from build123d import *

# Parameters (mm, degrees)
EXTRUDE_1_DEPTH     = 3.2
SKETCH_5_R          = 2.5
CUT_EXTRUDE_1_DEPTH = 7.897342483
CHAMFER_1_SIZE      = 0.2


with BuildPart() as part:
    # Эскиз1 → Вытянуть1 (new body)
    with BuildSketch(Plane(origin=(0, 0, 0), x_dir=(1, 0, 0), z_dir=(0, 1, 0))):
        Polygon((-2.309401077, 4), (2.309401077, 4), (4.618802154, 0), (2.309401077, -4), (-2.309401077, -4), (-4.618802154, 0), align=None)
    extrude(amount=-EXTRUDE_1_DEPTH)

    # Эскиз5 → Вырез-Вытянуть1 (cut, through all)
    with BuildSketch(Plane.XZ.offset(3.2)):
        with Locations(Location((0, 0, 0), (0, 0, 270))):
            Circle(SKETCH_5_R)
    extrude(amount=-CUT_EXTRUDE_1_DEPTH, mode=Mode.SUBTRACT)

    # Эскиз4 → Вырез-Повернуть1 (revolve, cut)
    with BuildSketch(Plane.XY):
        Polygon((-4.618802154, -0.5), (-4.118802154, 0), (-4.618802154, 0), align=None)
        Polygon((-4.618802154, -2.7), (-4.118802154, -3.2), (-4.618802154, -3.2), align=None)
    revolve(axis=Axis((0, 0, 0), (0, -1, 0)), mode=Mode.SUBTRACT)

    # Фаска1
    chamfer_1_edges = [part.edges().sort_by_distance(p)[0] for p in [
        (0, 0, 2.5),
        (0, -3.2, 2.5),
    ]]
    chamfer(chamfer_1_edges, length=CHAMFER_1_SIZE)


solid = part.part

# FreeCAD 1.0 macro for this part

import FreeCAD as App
import Part
import Sketcher
from FreeCAD import Vector
Q = App.Units.Quantity


def edges_at(feature, points):
    """Names of the edges that pass closest to the given points."""
    edges = feature.Shape.Edges
    near = lambda p: min(range(len(edges)), key=lambda i: edges[i].distToShape(Part.Vertex(*p))[0])
    return sorted({f"Edge{near(p) + 1}" for p in points})

doc = App.newDocument("Part")
params = doc.addObject("Spreadsheet::Sheet", "Params")
for row, (alias, value) in enumerate([
    ("pad1_length", "3.2 mm"),
    ("sketch2_diameter", "5 mm"),
    ("sketch3_width", "0.5 mm"),
    ("groove_angle", "360 deg"),
    ("chamfer_size", "0.2 mm"),
], start=1):
    params.set(f"A{row}", alias)
    params.set(f"B{row}", "=" + value)
    params.setAlias(f"B{row}", alias)

body = doc.addObject("PartDesign::Body", "Body")

# Sketch on XZ plane
sketch1 = doc.addObject("Sketcher::SketchObject", "Sketch")
body.addObject(sketch1)
sketch1.AttachmentSupport = (doc.XZ_Plane, [""])
sketch1.MapMode = "FlatFace"
sketch1.addGeometry([
    Part.LineSegment(Vector(2.3, -4, 0), Vector(-2.3, -4, 0)),  # 0
    Part.LineSegment(Vector(-2.3, -4, 0), Vector(-4.6, 0, 0)),  # 1
    Part.LineSegment(Vector(-4.6, 0, 0), Vector(-2.3, 4, 0)),  # 2
    Part.LineSegment(Vector(-2.3, 4, 0), Vector(2.3, 4, 0)),  # 3
    Part.LineSegment(Vector(2.3, 4, 0), Vector(4.6, 0, 0)),  # 4
    Part.LineSegment(Vector(4.6, 0, 0), Vector(2.3, -4, 0)),  # 5
], False)
sketch1.addConstraint([
    Sketcher.Constraint("Coincident", 0, 2, 1, 1),
    Sketcher.Constraint("Coincident", 1, 2, 2, 1),
    Sketcher.Constraint("Coincident", 2, 2, 3, 1),
    Sketcher.Constraint("Coincident", 3, 2, 4, 1),
    Sketcher.Constraint("Coincident", 4, 2, 5, 1),
    Sketcher.Constraint("Coincident", 5, 2, 0, 1),
    Sketcher.Constraint("Horizontal", 0),
    Sketcher.Constraint("Horizontal", 3),
    Sketcher.Constraint("Symmetric", 0, 2, 3, 2, -1, 1),
    Sketcher.Constraint("Symmetric", 1, 2, 4, 2, -1, 1),
    Sketcher.Constraint("PointOnObject", 1, 2, -1),
    Sketcher.Constraint("Parallel", 2, 5),
    Sketcher.Constraint("Vertical", 0, 2, 2, 2),
    Sketcher.Constraint("Angle", 1, Q("120 deg")),
    Sketcher.Constraint("DistanceY", 0, 2, -1, 1, 4.0),
    Sketcher.Constraint("DistanceX", 0, 2, -1, 1, 2.309401),
])
pad1 = doc.addObject("PartDesign::Pad", "Pad")
body.addObject(pad1)
pad1.Profile = sketch1
pad1.setExpression("Length", "Params.pad1_length")

# Sketch on XZ plane
sketch2 = doc.addObject("Sketcher::SketchObject", "Sketch001")
body.addObject(sketch2)
sketch2.AttachmentSupport = (doc.XZ_Plane, [""])
sketch2.MapMode = "FlatFace"
sketch2.AttachmentOffset = App.Placement(Vector(0, 0, 3.2), App.Rotation())
sketch2.addGeometry(Part.Circle(Vector(0, 0, 0), Vector(0, 0, 1), 2.5), False)
sketch2.addConstraint([
    Sketcher.Constraint("Coincident", 0, 3, -1, 1),
    Sketcher.Constraint("Diameter", 0, 5.0),
])
sketch2.setExpression("Constraints[1]", "Params.sketch2_diameter")
pocket1 = doc.addObject("PartDesign::Pocket", "Pocket")
body.addObject(pocket1)
pocket1.Profile = sketch2
pocket1.Type = "ThroughAll"

# Sketch on XY plane
sketch3 = doc.addObject("Sketcher::SketchObject", "Sketch002")
body.addObject(sketch3)
sketch3.AttachmentSupport = (doc.XY_Plane, [""])
sketch3.MapMode = "FlatFace"
sketch3.addGeometry([
    Part.LineSegment(Vector(-4.6, -0.5, 0), Vector(-4.1, 0, 0)),  # 0
    Part.LineSegment(Vector(-4.1, 0, 0), Vector(-4.6, 0, 0)),  # 1
    Part.LineSegment(Vector(-4.6, 0, 0), Vector(-4.6, -0.5, 0)),  # 2
    Part.LineSegment(Vector(-4.1, -3.2, 0), Vector(-4.6, -2.7, 0)),  # 3
    Part.LineSegment(Vector(-4.6, -2.7, 0), Vector(-4.6, -3.2, 0)),  # 4
    Part.LineSegment(Vector(-4.6, -3.2, 0), Vector(-4.1, -3.2, 0)),  # 5
], False)
sketch3.addConstraint([
    Sketcher.Constraint("Coincident", 0, 2, 1, 1),
    Sketcher.Constraint("Coincident", 1, 2, 2, 1),
    Sketcher.Constraint("Coincident", 2, 2, 0, 1),
    Sketcher.Constraint("Coincident", 3, 2, 4, 1),
    Sketcher.Constraint("Coincident", 4, 2, 5, 1),
    Sketcher.Constraint("Coincident", 5, 2, 3, 1),
    Sketcher.Constraint("Horizontal", 1),
    Sketcher.Constraint("Vertical", 2),
    Sketcher.Constraint("Vertical", 4),
    Sketcher.Constraint("Horizontal", 5),
    Sketcher.Constraint("PointOnObject", 0, 2, -1),
    Sketcher.Constraint("Perpendicular", 0, 3),
    Sketcher.Constraint("Vertical", 2, 2, 3, 2),
    Sketcher.Constraint("Vertical", 0, 2, 5, 2),
    Sketcher.Constraint("Equal", 5, 2),
    Sketcher.Constraint("DistanceX", 1, 2, 1, 1, 0.5),
    Sketcher.Constraint("DistanceY", 3, 2, -1, 1, 2.7),
    Sketcher.Constraint("DistanceX", 0, 2, -1, 1, 4.118802),
])
sketch3.setExpression("Constraints[15]", "Params.sketch3_width")
groove = doc.addObject("PartDesign::Groove", "Groove")
body.addObject(groove)
groove.Profile = sketch3
groove.ReferenceAxis = (sketch3, ["V_Axis"])
groove.setExpression("Angle", "Params.groove_angle")
doc.recompute()

chamfer = doc.addObject("PartDesign::Chamfer", "Chamfer")
body.addObject(chamfer)
chamfer.Base = (groove, edges_at(groove, [(0, 0, 2.5), (0, -3.2, 2.5)]))
chamfer.setExpression("Size", "Params.chamfer_size")

doc.recompute()
